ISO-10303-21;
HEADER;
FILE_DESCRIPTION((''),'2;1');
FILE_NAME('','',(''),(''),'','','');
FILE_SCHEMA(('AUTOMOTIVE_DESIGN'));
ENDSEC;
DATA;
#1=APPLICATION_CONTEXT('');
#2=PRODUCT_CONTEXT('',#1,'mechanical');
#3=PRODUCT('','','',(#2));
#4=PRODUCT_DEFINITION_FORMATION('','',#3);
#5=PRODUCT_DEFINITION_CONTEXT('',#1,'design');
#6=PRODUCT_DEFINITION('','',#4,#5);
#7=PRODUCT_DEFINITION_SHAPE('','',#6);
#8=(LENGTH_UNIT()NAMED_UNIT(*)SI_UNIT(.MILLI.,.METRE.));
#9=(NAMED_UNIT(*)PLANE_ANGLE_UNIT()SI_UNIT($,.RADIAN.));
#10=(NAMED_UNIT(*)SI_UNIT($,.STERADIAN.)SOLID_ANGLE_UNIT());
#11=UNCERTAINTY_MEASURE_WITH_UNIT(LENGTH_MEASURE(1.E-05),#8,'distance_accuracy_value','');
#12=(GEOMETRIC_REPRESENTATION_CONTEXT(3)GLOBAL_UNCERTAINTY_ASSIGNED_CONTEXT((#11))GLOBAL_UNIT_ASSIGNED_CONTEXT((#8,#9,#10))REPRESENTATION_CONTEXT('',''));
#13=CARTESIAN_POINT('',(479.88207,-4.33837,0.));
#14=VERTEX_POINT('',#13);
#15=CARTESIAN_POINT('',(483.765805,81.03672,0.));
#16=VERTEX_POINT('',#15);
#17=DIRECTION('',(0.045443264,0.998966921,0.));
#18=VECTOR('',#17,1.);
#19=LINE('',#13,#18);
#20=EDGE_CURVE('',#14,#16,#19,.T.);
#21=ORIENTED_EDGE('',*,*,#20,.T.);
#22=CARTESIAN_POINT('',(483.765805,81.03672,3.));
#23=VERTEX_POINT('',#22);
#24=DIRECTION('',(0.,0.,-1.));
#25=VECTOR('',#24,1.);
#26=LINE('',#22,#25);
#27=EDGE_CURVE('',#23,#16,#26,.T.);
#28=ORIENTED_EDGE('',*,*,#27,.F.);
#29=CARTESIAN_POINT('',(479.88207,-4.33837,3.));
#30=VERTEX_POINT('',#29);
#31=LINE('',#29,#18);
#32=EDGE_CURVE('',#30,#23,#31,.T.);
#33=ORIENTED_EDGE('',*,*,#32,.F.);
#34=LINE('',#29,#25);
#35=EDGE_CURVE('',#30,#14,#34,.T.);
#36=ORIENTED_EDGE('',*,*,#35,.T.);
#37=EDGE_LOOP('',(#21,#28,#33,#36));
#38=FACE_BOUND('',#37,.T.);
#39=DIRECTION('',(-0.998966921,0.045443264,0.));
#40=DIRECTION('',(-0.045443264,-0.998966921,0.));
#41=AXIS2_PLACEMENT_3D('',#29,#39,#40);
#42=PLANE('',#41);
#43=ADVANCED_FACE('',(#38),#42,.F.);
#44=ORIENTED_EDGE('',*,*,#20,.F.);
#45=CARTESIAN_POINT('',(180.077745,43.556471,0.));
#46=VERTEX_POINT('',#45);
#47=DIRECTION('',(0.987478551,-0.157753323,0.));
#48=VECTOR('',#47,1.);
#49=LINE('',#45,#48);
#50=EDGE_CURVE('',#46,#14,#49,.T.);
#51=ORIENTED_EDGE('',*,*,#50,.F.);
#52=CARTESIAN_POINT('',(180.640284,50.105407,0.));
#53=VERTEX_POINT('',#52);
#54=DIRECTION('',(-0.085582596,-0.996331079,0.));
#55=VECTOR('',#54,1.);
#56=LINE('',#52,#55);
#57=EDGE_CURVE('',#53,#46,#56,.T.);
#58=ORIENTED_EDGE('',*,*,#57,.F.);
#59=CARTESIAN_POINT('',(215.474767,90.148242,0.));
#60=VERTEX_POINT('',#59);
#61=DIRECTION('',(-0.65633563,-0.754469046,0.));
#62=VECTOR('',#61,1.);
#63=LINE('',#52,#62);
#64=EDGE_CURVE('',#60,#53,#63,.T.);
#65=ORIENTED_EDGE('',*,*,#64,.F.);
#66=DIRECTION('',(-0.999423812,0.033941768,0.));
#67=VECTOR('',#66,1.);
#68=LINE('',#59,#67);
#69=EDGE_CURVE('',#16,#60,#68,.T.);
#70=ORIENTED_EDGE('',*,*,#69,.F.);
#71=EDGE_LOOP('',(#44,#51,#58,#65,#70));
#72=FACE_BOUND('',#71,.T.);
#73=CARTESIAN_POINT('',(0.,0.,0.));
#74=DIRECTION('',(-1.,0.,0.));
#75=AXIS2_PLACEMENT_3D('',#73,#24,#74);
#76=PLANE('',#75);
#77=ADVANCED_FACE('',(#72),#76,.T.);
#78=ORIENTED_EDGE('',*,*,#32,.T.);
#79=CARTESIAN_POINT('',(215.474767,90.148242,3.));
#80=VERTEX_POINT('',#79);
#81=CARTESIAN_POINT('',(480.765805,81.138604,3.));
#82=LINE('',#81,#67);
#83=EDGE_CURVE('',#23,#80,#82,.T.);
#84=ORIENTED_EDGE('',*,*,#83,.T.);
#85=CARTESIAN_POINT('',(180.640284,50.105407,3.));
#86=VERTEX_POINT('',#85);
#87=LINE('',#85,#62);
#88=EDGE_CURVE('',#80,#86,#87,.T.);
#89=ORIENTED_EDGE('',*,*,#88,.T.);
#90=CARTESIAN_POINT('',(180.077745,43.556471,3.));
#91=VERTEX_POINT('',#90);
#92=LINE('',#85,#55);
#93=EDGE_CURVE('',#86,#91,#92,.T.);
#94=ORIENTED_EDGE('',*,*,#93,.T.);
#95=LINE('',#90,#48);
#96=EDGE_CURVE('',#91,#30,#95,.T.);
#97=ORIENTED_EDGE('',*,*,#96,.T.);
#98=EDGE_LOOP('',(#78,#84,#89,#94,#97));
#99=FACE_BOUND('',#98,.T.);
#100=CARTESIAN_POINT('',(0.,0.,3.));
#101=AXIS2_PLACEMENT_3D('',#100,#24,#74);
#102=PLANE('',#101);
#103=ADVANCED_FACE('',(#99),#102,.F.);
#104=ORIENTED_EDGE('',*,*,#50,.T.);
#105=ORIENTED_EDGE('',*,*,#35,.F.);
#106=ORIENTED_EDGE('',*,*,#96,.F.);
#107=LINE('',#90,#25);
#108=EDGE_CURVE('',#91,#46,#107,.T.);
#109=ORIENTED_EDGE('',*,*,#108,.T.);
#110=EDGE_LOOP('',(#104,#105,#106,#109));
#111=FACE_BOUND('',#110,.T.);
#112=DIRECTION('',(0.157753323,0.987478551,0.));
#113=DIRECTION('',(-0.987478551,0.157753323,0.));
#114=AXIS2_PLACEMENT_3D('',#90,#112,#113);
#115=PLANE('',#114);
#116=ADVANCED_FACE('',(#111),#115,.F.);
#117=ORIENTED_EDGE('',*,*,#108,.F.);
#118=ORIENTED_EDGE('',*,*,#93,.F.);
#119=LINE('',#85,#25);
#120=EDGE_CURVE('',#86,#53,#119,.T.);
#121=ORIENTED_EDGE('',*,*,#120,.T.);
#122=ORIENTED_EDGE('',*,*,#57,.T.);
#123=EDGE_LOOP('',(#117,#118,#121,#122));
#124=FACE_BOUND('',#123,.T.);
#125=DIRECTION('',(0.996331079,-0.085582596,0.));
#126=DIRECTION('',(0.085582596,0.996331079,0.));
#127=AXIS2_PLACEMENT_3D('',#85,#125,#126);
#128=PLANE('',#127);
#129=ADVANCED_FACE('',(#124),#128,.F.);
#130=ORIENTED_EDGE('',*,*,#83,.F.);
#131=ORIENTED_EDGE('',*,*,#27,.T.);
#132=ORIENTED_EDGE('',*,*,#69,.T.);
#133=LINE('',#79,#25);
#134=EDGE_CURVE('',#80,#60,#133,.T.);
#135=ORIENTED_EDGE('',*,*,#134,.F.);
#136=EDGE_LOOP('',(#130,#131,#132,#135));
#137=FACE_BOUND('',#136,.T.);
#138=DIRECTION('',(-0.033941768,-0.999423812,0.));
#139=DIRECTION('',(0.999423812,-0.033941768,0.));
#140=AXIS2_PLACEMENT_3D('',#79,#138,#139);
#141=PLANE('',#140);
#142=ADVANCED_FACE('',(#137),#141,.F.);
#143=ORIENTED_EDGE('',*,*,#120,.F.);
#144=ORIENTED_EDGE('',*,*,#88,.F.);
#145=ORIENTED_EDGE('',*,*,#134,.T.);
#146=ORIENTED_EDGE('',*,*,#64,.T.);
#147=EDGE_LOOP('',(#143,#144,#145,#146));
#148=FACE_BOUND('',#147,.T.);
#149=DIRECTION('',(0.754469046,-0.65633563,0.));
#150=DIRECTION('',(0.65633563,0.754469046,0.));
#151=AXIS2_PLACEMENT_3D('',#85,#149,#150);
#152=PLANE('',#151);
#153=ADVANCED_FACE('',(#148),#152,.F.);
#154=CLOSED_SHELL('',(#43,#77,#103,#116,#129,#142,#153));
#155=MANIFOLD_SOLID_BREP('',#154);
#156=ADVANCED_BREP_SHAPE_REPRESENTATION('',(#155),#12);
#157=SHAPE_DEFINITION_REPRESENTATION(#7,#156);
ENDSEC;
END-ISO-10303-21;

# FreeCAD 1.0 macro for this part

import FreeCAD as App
import Part
import Sketcher

V = App.Vector
Q = App.Units.Quantity

doc = App.newDocument("Part")
body = doc.addObject("PartDesign::Body", "Body")

# Sketch on XY plane
sketch1 = body.newObject("Sketcher::SketchObject", "Sketch")
sketch1.AttachmentSupport = (doc.getObject("XY_Plane"), [""])
sketch1.MapMode = "FlatFace"
sketch1.addGeometry([
    Part.LineSegment(V(480.8, 81.1, 0), V(215.5, 90.1, 0)),  # 0
    Part.LineSegment(V(215.5, 90.1, 0), V(180.6, 50.1, 0)),  # 1
    Part.LineSegment(V(180.6, 50.1, 0), V(180.1, 43.6, 0)),  # 2
    Part.LineSegment(V(180.1, 43.6, 0), V(479.9, -4.3, 0)),  # 3
    Part.LineSegment(V(479.9, -4.3, 0), V(483.8, 81, 0)),  # 4
    Part.LineSegment(V(483.8, 81, 0), V(480.8, 81.1, 0)),  # 5
], False)
sketch1.addConstraint([
    Sketcher.Constraint("Coincident", 0, 2, 1, 1),
    Sketcher.Constraint("Coincident", 1, 2, 2, 1),
    Sketcher.Constraint("Coincident", 2, 2, 3, 1),
    Sketcher.Constraint("Coincident", 3, 2, 4, 1),
    Sketcher.Constraint("Coincident", 4, 2, 5, 1),
    Sketcher.Constraint("Coincident", 5, 2, 0, 1),
    Sketcher.Constraint("Parallel", 0, 5),
    Sketcher.Constraint("DistanceX", 5, 2, 4, 2, Q("3 mm")),
    Sketcher.Constraint("Distance", 1, Q("53.074192 mm")),
    Sketcher.Constraint("Distance", 3, Q("303.605911 mm")),
    Sketcher.Constraint("Distance", 4, Q("85.46338 mm")),
    Sketcher.Constraint("DistanceY", -1, 1, 2, 2, Q("43.556471 mm")),
    Sketcher.Constraint("DistanceX", -1, 1, 3, 2, Q("479.88207 mm")),
    Sketcher.Constraint("DistanceY", 3, 2, -1, 1, Q("4.33837 mm")),
    Sketcher.Constraint("DistanceY", -1, 1, 4, 2, Q("81.03672 mm")),
    Sketcher.Constraint("DistanceX", 2, 2, 1, 2, Q("0.562539 mm")),
    Sketcher.Constraint("DistanceX", 2, 2, 0, 2, Q("35.397022 mm")),
    Sketcher.Constraint("DistanceY", 2, 2, 0, 2, Q("46.591771 mm")),
])
pad1 = body.newObject("PartDesign::Pad", "Pad")
pad1.Profile = sketch1
pad1.Length = 3

doc.recompute()
